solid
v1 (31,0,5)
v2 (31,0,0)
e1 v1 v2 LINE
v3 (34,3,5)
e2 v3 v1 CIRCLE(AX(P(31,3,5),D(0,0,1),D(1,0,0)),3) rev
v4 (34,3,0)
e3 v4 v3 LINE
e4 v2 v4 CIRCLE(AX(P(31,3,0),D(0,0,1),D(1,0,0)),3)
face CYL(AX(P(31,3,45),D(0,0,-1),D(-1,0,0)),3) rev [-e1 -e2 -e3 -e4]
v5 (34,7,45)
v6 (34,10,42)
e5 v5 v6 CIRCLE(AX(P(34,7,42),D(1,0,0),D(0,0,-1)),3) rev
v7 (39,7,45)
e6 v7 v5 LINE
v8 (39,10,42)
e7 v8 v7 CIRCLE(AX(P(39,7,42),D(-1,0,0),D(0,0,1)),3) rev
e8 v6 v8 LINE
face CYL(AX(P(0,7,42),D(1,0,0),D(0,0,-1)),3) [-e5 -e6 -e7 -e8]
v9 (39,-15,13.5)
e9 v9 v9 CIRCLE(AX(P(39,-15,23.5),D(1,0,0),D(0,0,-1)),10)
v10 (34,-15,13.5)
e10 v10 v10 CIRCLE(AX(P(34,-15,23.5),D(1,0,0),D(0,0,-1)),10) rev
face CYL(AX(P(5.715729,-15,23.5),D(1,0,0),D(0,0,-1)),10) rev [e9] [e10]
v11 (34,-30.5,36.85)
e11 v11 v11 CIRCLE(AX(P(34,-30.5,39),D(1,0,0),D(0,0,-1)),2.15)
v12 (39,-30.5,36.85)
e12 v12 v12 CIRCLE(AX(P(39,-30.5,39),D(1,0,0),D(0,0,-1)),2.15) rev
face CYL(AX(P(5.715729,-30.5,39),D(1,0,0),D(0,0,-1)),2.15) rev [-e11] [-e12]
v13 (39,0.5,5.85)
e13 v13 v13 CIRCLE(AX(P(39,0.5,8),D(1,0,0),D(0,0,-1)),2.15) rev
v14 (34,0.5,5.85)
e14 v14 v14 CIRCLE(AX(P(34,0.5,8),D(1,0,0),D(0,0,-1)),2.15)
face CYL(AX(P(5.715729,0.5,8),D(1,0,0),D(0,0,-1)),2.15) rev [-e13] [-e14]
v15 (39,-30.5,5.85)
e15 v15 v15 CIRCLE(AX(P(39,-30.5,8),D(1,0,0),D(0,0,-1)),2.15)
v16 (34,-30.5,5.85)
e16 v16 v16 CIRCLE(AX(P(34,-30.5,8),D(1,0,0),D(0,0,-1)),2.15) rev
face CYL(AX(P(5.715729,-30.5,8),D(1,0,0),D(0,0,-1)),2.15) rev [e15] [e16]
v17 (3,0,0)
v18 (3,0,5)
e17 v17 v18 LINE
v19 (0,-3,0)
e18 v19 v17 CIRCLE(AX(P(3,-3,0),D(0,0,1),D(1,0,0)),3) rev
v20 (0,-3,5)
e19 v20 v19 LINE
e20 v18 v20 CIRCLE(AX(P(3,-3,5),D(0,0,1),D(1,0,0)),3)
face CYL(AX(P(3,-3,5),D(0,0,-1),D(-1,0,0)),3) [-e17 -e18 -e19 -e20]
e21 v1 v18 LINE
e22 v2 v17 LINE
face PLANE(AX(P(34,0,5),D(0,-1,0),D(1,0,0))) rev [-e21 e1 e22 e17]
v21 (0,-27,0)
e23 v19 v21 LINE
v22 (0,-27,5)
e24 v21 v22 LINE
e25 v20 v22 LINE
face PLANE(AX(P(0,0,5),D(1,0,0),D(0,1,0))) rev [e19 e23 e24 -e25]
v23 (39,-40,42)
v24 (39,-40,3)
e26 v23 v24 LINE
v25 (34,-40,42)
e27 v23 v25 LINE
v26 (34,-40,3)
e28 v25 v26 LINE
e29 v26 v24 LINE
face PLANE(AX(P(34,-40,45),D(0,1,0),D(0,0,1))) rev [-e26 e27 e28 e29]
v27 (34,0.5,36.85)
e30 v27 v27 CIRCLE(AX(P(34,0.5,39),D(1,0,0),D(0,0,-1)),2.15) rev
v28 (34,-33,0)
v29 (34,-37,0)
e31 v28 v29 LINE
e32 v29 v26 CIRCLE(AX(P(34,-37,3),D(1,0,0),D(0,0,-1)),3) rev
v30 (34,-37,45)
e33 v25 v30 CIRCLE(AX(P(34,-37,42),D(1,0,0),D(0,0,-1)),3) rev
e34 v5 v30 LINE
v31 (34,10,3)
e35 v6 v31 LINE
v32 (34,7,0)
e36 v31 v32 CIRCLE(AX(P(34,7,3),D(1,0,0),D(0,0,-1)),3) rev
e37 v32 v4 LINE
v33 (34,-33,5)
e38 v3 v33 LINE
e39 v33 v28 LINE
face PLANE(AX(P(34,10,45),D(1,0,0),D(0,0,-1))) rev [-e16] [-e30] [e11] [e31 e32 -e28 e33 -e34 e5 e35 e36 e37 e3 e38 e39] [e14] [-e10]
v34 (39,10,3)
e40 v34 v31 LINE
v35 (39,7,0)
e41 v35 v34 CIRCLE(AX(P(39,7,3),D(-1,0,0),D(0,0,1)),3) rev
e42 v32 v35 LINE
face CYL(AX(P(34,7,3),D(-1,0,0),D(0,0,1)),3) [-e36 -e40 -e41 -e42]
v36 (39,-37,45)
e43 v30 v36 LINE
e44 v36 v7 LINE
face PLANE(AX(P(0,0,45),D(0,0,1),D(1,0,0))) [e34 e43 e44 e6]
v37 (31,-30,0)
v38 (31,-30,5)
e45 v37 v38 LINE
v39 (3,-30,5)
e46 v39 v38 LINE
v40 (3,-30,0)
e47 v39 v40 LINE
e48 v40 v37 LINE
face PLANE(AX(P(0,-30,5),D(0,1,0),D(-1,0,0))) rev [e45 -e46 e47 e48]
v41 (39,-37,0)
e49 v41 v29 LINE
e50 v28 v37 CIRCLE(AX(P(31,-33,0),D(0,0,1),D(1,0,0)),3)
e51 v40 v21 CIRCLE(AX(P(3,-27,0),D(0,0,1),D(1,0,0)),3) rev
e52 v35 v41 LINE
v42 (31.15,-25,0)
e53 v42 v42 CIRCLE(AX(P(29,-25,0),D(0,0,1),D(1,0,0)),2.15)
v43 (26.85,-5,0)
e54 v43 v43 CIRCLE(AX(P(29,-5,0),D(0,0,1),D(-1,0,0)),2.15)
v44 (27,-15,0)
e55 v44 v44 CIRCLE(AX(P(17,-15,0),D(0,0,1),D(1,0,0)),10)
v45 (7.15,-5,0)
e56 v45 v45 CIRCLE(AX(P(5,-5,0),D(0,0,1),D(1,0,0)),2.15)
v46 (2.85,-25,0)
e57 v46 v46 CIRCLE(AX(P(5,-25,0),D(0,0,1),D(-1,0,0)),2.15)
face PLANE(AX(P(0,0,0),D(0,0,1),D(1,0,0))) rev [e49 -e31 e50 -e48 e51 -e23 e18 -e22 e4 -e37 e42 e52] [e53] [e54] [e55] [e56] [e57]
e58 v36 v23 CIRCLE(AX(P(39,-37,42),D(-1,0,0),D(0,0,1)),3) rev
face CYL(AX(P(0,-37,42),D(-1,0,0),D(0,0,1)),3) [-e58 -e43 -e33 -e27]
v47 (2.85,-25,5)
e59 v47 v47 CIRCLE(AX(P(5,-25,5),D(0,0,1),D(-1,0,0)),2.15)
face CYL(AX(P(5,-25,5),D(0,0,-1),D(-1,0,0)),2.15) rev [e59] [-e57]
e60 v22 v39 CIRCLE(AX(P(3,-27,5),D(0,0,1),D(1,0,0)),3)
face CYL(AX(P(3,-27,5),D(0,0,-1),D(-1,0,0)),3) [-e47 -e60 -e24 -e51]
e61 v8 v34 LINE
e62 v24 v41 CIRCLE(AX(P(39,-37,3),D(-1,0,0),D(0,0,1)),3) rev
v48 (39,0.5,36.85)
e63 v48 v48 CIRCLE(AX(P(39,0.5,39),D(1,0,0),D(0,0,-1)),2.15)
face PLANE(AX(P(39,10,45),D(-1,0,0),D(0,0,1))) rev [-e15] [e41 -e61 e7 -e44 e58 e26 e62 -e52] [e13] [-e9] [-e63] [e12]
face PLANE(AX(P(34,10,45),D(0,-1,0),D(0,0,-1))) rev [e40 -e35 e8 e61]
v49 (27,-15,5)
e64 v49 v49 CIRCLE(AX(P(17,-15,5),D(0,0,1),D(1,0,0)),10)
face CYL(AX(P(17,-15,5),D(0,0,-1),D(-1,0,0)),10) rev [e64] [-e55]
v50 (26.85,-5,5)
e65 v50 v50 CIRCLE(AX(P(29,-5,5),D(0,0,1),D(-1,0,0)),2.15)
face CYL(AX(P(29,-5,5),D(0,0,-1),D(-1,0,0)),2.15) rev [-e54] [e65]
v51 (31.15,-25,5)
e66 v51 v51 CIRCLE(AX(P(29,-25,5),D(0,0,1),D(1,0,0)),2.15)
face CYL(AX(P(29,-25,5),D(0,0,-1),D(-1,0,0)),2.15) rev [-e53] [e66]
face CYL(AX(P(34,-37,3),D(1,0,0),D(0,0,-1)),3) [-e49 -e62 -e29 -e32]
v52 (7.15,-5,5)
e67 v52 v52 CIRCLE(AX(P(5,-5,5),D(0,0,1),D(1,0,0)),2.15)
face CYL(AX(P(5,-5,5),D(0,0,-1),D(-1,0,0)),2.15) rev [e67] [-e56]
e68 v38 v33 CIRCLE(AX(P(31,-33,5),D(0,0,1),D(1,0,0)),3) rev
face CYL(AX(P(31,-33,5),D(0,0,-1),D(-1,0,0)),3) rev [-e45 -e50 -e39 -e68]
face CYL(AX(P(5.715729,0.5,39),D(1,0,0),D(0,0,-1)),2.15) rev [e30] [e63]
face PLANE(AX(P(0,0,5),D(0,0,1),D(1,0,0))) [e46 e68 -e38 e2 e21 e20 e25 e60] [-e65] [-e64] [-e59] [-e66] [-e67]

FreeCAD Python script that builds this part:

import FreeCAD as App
import Part
import Sketcher

V = App.Vector
Q = App.Units.Quantity


def edges_at(feature, points):
    """Names of the edges that pass closest to the given points."""
    edges = feature.Shape.Edges
    near = lambda p: min(range(len(edges)), key=lambda i: edges[i].distToShape(Part.Vertex(*p))[0])
    return sorted({f"Edge{near(p) + 1}" for p in points})

doc = App.newDocument("Part")
params = doc.addObject("Spreadsheet::Sheet", "Params")
for row, (alias, value) in enumerate([
    ("sketch1_diameter", "20 mm"),
    ("sketch1_diameter2", "4.3 mm"),
    ("sketch1_width", "34 mm"),
    ("sketch1_height", "30 mm"),
    ("pad1_length", "5 mm"),
    ("sketch2_width", "5 mm"),
    ("sketch2_height", "50 mm"),
    ("pad2_length", "40 mm"),
    ("sketch3_width", "30 mm"),
    ("sketch3_height", "5 mm"),
    ("pad3_length", "5 mm"),
    ("sketch4_width", "5 mm"),
    ("sketch4_height", "10 mm"),
    ("pad4_length", "5 mm"),
    ("fillet_radius", "3 mm"),
    ("fillet2_radius", "3 mm"),
    ("fillet3_radius", "3 mm"),
    ("sketch5_diameter", "20 mm"),
    ("sketch5_diameter2", "4.3 mm"),
    ("pocket1_length", "5 mm"),
], start=1):
    params.set(f"A{row}", alias)
    params.set(f"B{row}", "=" + value)
    params.setAlias(f"B{row}", alias)

body = doc.addObject("PartDesign::Body", "Body")

# Sketch on XY plane
sketch1 = doc.addObject("Sketcher::SketchObject", "Sketch")
body.addObject(sketch1)
sketch1.AttachmentSupport = (doc.XY_Plane, [""])
sketch1.MapMode = "FlatFace"
sketch1.addGeometry(Part.LineSegment(V(0, 0, 0), V(0, -30, 0)), False)
sketch1.addGeometry(Part.LineSegment(V(0, -30, 0), V(34, -30, 0)), False)
sketch1.addGeometry(Part.LineSegment(V(34, -30, 0), V(34, 0, 0)), False)
sketch1.addGeometry(Part.LineSegment(V(34, 0, 0), V(0, 0, 0)), False)
sketch1.addGeometry(Part.Circle(V(5, -25, 0), V(0, 0, 1), 2.1), False)
sketch1.addGeometry(Part.Circle(V(29, -25, 0), V(0, 0, 1), 2.1), False)
sketch1.addGeometry(Part.Circle(V(5, -5, 0), V(0, 0, 1), 2.1), False)
sketch1.addGeometry(Part.Circle(V(17, -15, 0), V(0, 0, 1), 10), False)
sketch1.addGeometry(Part.Circle(V(29, -5, 0), V(0, 0, 1), 2.1), False)
sketch1.addConstraint(Sketcher.Constraint("Coincident", 0, 2, 1, 1))
sketch1.addConstraint(Sketcher.Constraint("Coincident", 1, 2, 2, 1))
sketch1.addConstraint(Sketcher.Constraint("Coincident", 2, 2, 3, 1))
sketch1.addConstraint(Sketcher.Constraint("Coincident", 3, 2, 0, 1))
sketch1.addConstraint(Sketcher.Constraint("Vertical", 0))
sketch1.addConstraint(Sketcher.Constraint("Horizontal", 1))
sketch1.addConstraint(Sketcher.Constraint("Vertical", 2))
sketch1.addConstraint(Sketcher.Constraint("Horizontal", 3))
sketch1.addConstraint(Sketcher.Constraint("Coincident", 3, 2, -1, 1))
sketch1.addConstraint(Sketcher.Constraint("Equal", 4, 5))
sketch1.addConstraint(Sketcher.Constraint("Equal", 5, 6))
sketch1.addConstraint(Sketcher.Constraint("Equal", 6, 8))
sketch1.addConstraint(Sketcher.Constraint("Horizontal", 4, 3, 5, 3))
sketch1.addConstraint(Sketcher.Constraint("Horizontal", 6, 3, 8, 3))
sketch1.addConstraint(Sketcher.Constraint("Vertical", 4, 3, 6, 3))
sketch1.addConstraint(Sketcher.Constraint("Vertical", 5, 3, 8, 3))
sketch1.addConstraint(Sketcher.Constraint("Diameter", 7, Q("20 mm")))
sketch1.addConstraint(Sketcher.Constraint("Diameter", 4, Q("4.3 mm")))
sketch1.addConstraint(Sketcher.Constraint("DistanceX", 1, 1, 1, 2, Q("34 mm")))
sketch1.addConstraint(Sketcher.Constraint("DistanceY", 0, 2, 0, 1, Q("30 mm")))
sketch1.addConstraint(Sketcher.Constraint("DistanceX", -1, 1, 4, 3, Q("5 mm")))
sketch1.addConstraint(Sketcher.Constraint("DistanceY", 4, 3, -1, 1, Q("25 mm")))
sketch1.addConstraint(Sketcher.Constraint("DistanceX", -1, 1, 5, 3, Q("29 mm")))
sketch1.addConstraint(Sketcher.Constraint("DistanceY", 6, 3, -1, 1, Q("5 mm")))
sketch1.addConstraint(Sketcher.Constraint("DistanceX", -1, 1, 7, 3, Q("17 mm")))
sketch1.addConstraint(Sketcher.Constraint("DistanceY", 7, 3, -1, 1, Q("15 mm")))
sketch1.setExpression("Constraints[16]", "Params.sketch1_diameter")
sketch1.setExpression("Constraints[17]", "Params.sketch1_diameter2")
sketch1.setExpression("Constraints[18]", "Params.sketch1_width")
sketch1.setExpression("Constraints[19]", "Params.sketch1_height")
pad1 = doc.addObject("PartDesign::Pad", "Pad")
body.addObject(pad1)
pad1.Profile = sketch1
pad1.setExpression("Length", "Params.pad1_length")
body2 = doc.addObject("PartDesign::Body", "Body001")

# Sketch on XY plane
sketch2 = doc.addObject("Sketcher::SketchObject", "Sketch001")
body2.addObject(sketch2)
sketch2.AttachmentSupport = (doc.getObject("XY_Plane001"), [""])
sketch2.MapMode = "FlatFace"
sketch2.AttachmentOffset = App.Placement(V(0, 0, 5), App.Rotation())
sketch2.addGeometry(Part.LineSegment(V(34, 10, 0), V(34, -40, 0)), False)
sketch2.addGeometry(Part.LineSegment(V(34, -40, 0), V(39, -40, 0)), False)
sketch2.addGeometry(Part.LineSegment(V(39, -40, 0), V(39, 10, 0)), False)
sketch2.addGeometry(Part.LineSegment(V(39, 10, 0), V(34, 10, 0)), False)
sketch2.addConstraint(Sketcher.Constraint("Coincident", 0, 2, 1, 1))
sketch2.addConstraint(Sketcher.Constraint("Coincident", 1, 2, 2, 1))
sketch2.addConstraint(Sketcher.Constraint("Coincident", 2, 2, 3, 1))
sketch2.addConstraint(Sketcher.Constraint("Coincident", 3, 2, 0, 1))
sketch2.addConstraint(Sketcher.Constraint("Vertical", 0))
sketch2.addConstraint(Sketcher.Constraint("Horizontal", 1))
sketch2.addConstraint(Sketcher.Constraint("Vertical", 2))
sketch2.addConstraint(Sketcher.Constraint("Horizontal", 3))
sketch2.addConstraint(Sketcher.Constraint("DistanceX", 1, 1, 1, 2, Q("5 mm")))
sketch2.addConstraint(Sketcher.Constraint("DistanceY", 0, 2, 0, 1, Q("50 mm")))
sketch2.addConstraint(Sketcher.Constraint("DistanceX", -1, 1, 0, 2, Q("34 mm")))
sketch2.addConstraint(Sketcher.Constraint("DistanceY", 0, 2, -1, 1, Q("40 mm")))
sketch2.setExpression("Constraints[8]", "Params.sketch2_width")
sketch2.setExpression("Constraints[9]", "Params.sketch2_height")
pad2 = doc.addObject("PartDesign::Pad", "Pad001")
body2.addObject(pad2)
pad2.Profile = sketch2
pad2.setExpression("Length", "Params.pad2_length")
body.AllowCompound = True
doc.recompute()

boolean = doc.addObject("PartDesign::Boolean", "Boolean")
body.addObject(boolean)
boolean.Type = "Fuse"
boolean.addObjects([body2])

# Sketch on YZ plane
sketch3 = doc.addObject("Sketcher::SketchObject", "Sketch002")
body.addObject(sketch3)
sketch3.AttachmentSupport = (doc.YZ_Plane, [""])
sketch3.MapMode = "FlatFace"
sketch3.AttachmentOffset = App.Placement(V(0, 0, 34), App.Rotation())
sketch3.addGeometry(Part.LineSegment(V(0, 5, 0), V(-30, 5, 0)), False)
sketch3.addGeometry(Part.LineSegment(V(-30, 5, 0), V(-30, 0, 0)), False)
sketch3.addGeometry(Part.LineSegment(V(-30, 0, 0), V(0, 0, 0)), False)
sketch3.addGeometry(Part.LineSegment(V(0, 0, 0), V(0, 5, 0)), False)
sketch3.addConstraint(Sketcher.Constraint("Coincident", 0, 2, 1, 1))
sketch3.addConstraint(Sketcher.Constraint("Coincident", 1, 2, 2, 1))
sketch3.addConstraint(Sketcher.Constraint("Coincident", 2, 2, 3, 1))
sketch3.addConstraint(Sketcher.Constraint("Coincident", 3, 2, 0, 1))
sketch3.addConstraint(Sketcher.Constraint("Horizontal", 0))
sketch3.addConstraint(Sketcher.Constraint("Vertical", 1))
sketch3.addConstraint(Sketcher.Constraint("Horizontal", 2))
sketch3.addConstraint(Sketcher.Constraint("Vertical", 3))
sketch3.addConstraint(Sketcher.Constraint("Coincident", 2, 2, -1, 1))
sketch3.addConstraint(Sketcher.Constraint("DistanceX", 0, 2, 0, 1, Q("30 mm")))
sketch3.addConstraint(Sketcher.Constraint("DistanceY", 1, 2, 1, 1, Q("5 mm")))
sketch3.setExpression("Constraints[9]", "Params.sketch3_width")
sketch3.setExpression("Constraints[10]", "Params.sketch3_height")
pad3 = doc.addObject("PartDesign::Pad", "Pad002")
body.addObject(pad3)
pad3.Profile = sketch3
pad3.setExpression("Length", "Params.pad3_length")

# Sketch on XY plane
sketch4 = doc.addObject("Sketcher::SketchObject", "Sketch003")
body.addObject(sketch4)
sketch4.AttachmentSupport = (doc.XY_Plane, [""])
sketch4.MapMode = "FlatFace"
sketch4.AttachmentOffset = App.Placement(V(0, 0, 5), App.Rotation())
sketch4.addGeometry(Part.LineSegment(V(39, -30, 0), V(39, -40, 0)), False)
sketch4.addGeometry(Part.LineSegment(V(39, -40, 0), V(34, -40, 0)), False)
sketch4.addGeometry(Part.LineSegment(V(34, -40, 0), V(34, -30, 0)), False)
sketch4.addGeometry(Part.LineSegment(V(34, -30, 0), V(39, -30, 0)), False)
sketch4.addGeometry(Part.LineSegment(V(39, 10, 0), V(39, 0, 0)), False)
sketch4.addGeometry(Part.LineSegment(V(39, 0, 0), V(34, 0, 0)), False)
sketch4.addGeometry(Part.LineSegment(V(34, 0, 0), V(34, 10, 0)), False)
sketch4.addGeometry(Part.LineSegment(V(34, 10, 0), V(39, 10, 0)), False)
sketch4.addConstraint(Sketcher.Constraint("Coincident", 0, 2, 1, 1))
sketch4.addConstraint(Sketcher.Constraint("Coincident", 1, 2, 2, 1))
sketch4.addConstraint(Sketcher.Constraint("Coincident", 2, 2, 3, 1))
sketch4.addConstraint(Sketcher.Constraint("Coincident", 3, 2, 0, 1))
sketch4.addConstraint(Sketcher.Constraint("Coincident", 4, 2, 5, 1))
sketch4.addConstraint(Sketcher.Constraint("Coincident", 5, 2, 6, 1))
sketch4.addConstraint(Sketcher.Constraint("Coincident", 6, 2, 7, 1))
sketch4.addConstraint(Sketcher.Constraint("Coincident", 7, 2, 4, 1))
sketch4.addConstraint(Sketcher.Constraint("Vertical", 0))
sketch4.addConstraint(Sketcher.Constraint("Horizontal", 1))
sketch4.addConstraint(Sketcher.Constraint("Vertical", 2))
sketch4.addConstraint(Sketcher.Constraint("Horizontal", 3))
sketch4.addConstraint(Sketcher.Constraint("Vertical", 4))
sketch4.addConstraint(Sketcher.Constraint("Horizontal", 5))
sketch4.addConstraint(Sketcher.Constraint("Vertical", 6))
sketch4.addConstraint(Sketcher.Constraint("Horizontal", 7))
sketch4.addConstraint(Sketcher.Constraint("PointOnObject", 4, 2, -1))
sketch4.addConstraint(Sketcher.Constraint("Vertical", 3, 2, 4, 2))
sketch4.addConstraint(Sketcher.Constraint("Vertical", 2, 2, 5, 2))
sketch4.addConstraint(Sketcher.Constraint("Equal", 2, 4))
sketch4.addConstraint(Sketcher.Constraint("DistanceX", 1, 2, 1, 1, Q("5 mm")))
sketch4.addConstraint(Sketcher.Constraint("DistanceY", 0, 2, 0, 1, Q("10 mm")))
sketch4.addConstraint(Sketcher.Constraint("DistanceX", -1, 1, 0, 2, Q("39 mm")))
sketch4.addConstraint(Sketcher.Constraint("DistanceY", 0, 2, -1, 1, Q("40 mm")))
sketch4.setExpression("Constraints[20]", "Params.sketch4_width")
sketch4.setExpression("Constraints[21]", "Params.sketch4_height")
pad4 = doc.addObject("PartDesign::Pad", "Pad003")
body.addObject(pad4)
pad4.Profile = sketch4
pad4.setExpression("Length", "Params.pad4_length")
pad4.Reversed = True
doc.recompute()

fillet = doc.addObject("PartDesign::Fillet", "Fillet")
body.addObject(fillet)
fillet.Base = (pad4, edges_at(pad4, [
    (34, -30, 2.5),
    (34, 0, 2.5),
    (0, -30, 2.5),
    (0, 0, 2.5),
]))
fillet.setExpression("Radius", "Params.fillet_radius")
doc.recompute()

fillet2 = doc.addObject("PartDesign::Fillet", "Fillet001")
body.addObject(fillet2)
fillet2.Base = (fillet, edges_at(fillet, [(36.5, -40, 0)]))
fillet2.setExpression("Radius", "Params.fillet2_radius")
doc.recompute()

fillet3 = doc.addObject("PartDesign::Fillet", "Fillet002")
body.addObject(fillet3)
fillet3.Base = (fillet2, edges_at(fillet2, [(36.5, -40, 45), (36.5, 10, 45), (36.5, 10, 0)]))
fillet3.setExpression("Radius", "Params.fillet3_radius")

# Sketch on YZ plane
sketch5 = doc.addObject("Sketcher::SketchObject", "Sketch004")
body.addObject(sketch5)
sketch5.AttachmentSupport = (doc.YZ_Plane, [""])
sketch5.MapMode = "FlatFace"
sketch5.AttachmentOffset = App.Placement(V(0, 0, 39), App.Rotation())
sketch5.addGeometry(Part.Circle(V(0.5, 39, 0), V(0, 0, 1), 2.1), False)
sketch5.addGeometry(Part.Circle(V(-15, 23.5, 0), V(0, 0, 1), 10), False)
sketch5.addGeometry(Part.Circle(V(0.5, 8, 0), V(0, 0, 1), 2.1), False)
sketch5.addGeometry(Part.Circle(V(-30.5, 8, 0), V(0, 0, 1), 2.1), False)
sketch5.addGeometry(Part.Circle(V(-30.5, 39, 0), V(0, 0, 1), 2.1), False)
sketch5.addConstraint(Sketcher.Constraint("Equal", 0, 2))
sketch5.addConstraint(Sketcher.Constraint("Equal", 2, 3))
sketch5.addConstraint(Sketcher.Constraint("Equal", 3, 4))
sketch5.addConstraint(Sketcher.Constraint("Horizontal", 2, 3, 3, 3))
sketch5.addConstraint(Sketcher.Constraint("Horizontal", 0, 3, 4, 3))
sketch5.addConstraint(Sketcher.Constraint("Vertical", 0, 3, 2, 3))
sketch5.addConstraint(Sketcher.Constraint("Vertical", 3, 3, 4, 3))
sketch5.addConstraint(Sketcher.Constraint("Diameter", 1, Q("20 mm")))
sketch5.addConstraint(Sketcher.Constraint("Diameter", 0, Q("4.3 mm")))
sketch5.addConstraint(Sketcher.Constraint("DistanceY", -1, 1, 0, 3, Q("39 mm")))
sketch5.addConstraint(Sketcher.Constraint("DistanceX", 1, 3, -1, 1, Q("15 mm")))
sketch5.addConstraint(Sketcher.Constraint("DistanceY", -1, 1, 2, 3, Q("8 mm")))
sketch5.addConstraint(Sketcher.Constraint("DistanceX", 3, 3, 2, 3, Q("31 mm")))
sketch5.addConstraint(Sketcher.Constraint("DistanceX", -1, 1, 0, 3, Q("0.5 mm")))
sketch5.addConstraint(Sketcher.Constraint("DistanceY", -1, 1, 1, 3, Q("23.5 mm")))
sketch5.setExpression("Constraints[7]", "Params.sketch5_diameter")
sketch5.setExpression("Constraints[8]", "Params.sketch5_diameter2")
pocket1 = doc.addObject("PartDesign::Pocket", "Pocket")
body.addObject(pocket1)
pocket1.Profile = sketch5
pocket1.setExpression("Length", "Params.pocket1_length")

doc.recompute()
